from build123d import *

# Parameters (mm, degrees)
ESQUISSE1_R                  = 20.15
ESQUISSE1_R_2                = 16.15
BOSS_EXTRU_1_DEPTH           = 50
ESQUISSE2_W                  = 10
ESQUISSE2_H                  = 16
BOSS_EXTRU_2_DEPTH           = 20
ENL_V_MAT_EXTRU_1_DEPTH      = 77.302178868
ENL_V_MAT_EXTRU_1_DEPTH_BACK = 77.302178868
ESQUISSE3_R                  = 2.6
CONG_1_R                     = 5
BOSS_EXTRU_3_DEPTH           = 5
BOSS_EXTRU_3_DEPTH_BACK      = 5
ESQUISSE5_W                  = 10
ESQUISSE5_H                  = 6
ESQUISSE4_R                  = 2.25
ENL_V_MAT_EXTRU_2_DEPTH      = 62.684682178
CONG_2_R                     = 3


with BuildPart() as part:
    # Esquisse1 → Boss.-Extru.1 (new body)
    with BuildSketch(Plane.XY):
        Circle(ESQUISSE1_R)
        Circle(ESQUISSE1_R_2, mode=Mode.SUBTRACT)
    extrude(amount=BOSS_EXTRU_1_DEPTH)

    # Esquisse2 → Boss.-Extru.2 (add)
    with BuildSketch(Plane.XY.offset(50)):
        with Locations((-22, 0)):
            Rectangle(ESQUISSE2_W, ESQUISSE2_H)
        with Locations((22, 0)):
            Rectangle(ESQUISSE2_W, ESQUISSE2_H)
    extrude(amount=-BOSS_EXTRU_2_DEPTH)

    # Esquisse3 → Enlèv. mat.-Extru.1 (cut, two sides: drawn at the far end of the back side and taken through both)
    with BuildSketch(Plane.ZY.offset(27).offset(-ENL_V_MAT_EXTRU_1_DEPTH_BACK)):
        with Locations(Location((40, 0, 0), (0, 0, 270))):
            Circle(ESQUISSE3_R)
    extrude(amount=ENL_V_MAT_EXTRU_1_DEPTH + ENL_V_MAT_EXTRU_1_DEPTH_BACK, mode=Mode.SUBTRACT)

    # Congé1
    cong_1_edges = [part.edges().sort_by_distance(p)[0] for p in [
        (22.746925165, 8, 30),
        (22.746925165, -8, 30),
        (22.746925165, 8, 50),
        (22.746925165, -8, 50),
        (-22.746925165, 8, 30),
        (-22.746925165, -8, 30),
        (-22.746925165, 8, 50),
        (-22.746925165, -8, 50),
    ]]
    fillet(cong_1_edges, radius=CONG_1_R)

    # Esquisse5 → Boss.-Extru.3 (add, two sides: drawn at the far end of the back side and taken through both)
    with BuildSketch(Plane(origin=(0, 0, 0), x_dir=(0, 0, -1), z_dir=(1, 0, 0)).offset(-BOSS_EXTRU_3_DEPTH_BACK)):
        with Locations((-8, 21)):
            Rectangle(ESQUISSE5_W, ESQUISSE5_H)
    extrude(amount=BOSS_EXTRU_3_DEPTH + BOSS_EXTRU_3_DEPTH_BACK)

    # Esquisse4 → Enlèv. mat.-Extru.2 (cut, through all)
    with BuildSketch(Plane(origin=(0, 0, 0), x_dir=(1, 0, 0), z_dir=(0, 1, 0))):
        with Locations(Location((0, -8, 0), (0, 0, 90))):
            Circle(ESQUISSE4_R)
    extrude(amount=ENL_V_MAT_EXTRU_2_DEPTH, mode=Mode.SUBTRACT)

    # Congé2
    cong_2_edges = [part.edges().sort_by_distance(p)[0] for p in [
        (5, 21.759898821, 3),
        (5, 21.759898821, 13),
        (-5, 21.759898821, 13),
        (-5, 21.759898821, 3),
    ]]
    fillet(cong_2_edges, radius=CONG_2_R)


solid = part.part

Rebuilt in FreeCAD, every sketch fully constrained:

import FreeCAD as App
import Part
import Sketcher


def edges_at(feature, points):
    """Names of the edges that pass closest to the given points."""
    edges = feature.Shape.Edges
    near = lambda p: min(range(len(edges)), key=lambda i: edges[i].distToShape(Part.Vertex(*p))[0])
    return sorted({f"Edge{near(p) + 1}" for p in points})


def add_polygon(sketch, points):
    """Adds a closed chain of lines whose ends are joined by coincident constraints."""
    first, n = sketch.GeometryCount, len(points)
    for a, b in zip(points, points[1:] + points[:1]):
        sketch.addGeometry(Part.LineSegment(App.Vector(*a, 0), App.Vector(*b, 0)), False)
    for i in range(n):
        sketch.addConstraint(Sketcher.Constraint("Coincident", first + i, 2, first + (i + 1) % n, 1))

doc = App.newDocument("Part")
params = doc.addObject("Spreadsheet::Sheet", "Params")
for row, (alias, value) in enumerate([
    ("sketch1_diameter", "40.3 mm"),
    ("sketch1_diameter2", "32.3 mm"),
    ("pad1_length", "50 mm"),
    ("sketch2_width", "10 mm"),
    ("sketch2_height", "16 mm"),
    ("pad2_length", "20 mm"),
    ("sketch3_diameter", "5.2 mm"),
    ("fillet_radius", "5 mm"),
    ("sketch4_width", "6 mm"),
    ("sketch4_height", "10 mm"),
    ("pad3_length", "5 mm"),
    ("pad3_length2", "5 mm"),
    ("sketch5_diameter", "4.5 mm"),
    ("fillet2_radius", "3 mm"),
], start=1):
    params.set(f"A{row}", alias)
    params.set(f"B{row}", "=" + value)
    params.setAlias(f"B{row}", alias)

body = doc.addObject("PartDesign::Body", "Body")

sketch1 = body.newObject("Sketcher::SketchObject", "Sketch")
sketch1.AttachmentSupport = (doc.getObject("XY_Plane"), [""])
sketch1.MapMode = "FlatFace"
sketch1.addGeometry([
    Part.Circle(App.Vector(0, 0, 0), App.Vector(0, 0, 1), 20),
    Part.Circle(App.Vector(0, 0, 0), App.Vector(0, 0, 1), 16),
], False)
sketch1.addConstraint([
    Sketcher.Constraint("Coincident", 0, 3, -1, 1),
    Sketcher.Constraint("Coincident", 1, 3, -1, 1),
    Sketcher.Constraint("Diameter", 0, 40.3),
    Sketcher.Constraint("Diameter", 1, 32.3),
])
sketch1.setExpression("Constraints[2]", "Params.sketch1_diameter")
sketch1.setExpression("Constraints[3]", "Params.sketch1_diameter2")
pad1 = body.newObject("PartDesign::Pad", "Pad")
pad1.Profile = sketch1
pad1.setExpression("Length", "Params.pad1_length")

sketch2 = body.newObject("Sketcher::SketchObject", "Sketch001")
sketch2.AttachmentSupport = (doc.getObject("XY_Plane"), [""])
sketch2.MapMode = "FlatFace"
sketch2.AttachmentOffset = App.Placement(App.Vector(0, 0, 50), App.Rotation())
add_polygon(sketch2, [(-27, 8), (-27, -8), (-17, -8), (-17, 8)])
add_polygon(sketch2, [(17, 8), (17, -8), (27, -8), (27, 8)])
sketch2.addConstraint([
    Sketcher.Constraint("Vertical", 0),
    Sketcher.Constraint("Horizontal", 1),
    Sketcher.Constraint("Vertical", 2),
    Sketcher.Constraint("Horizontal", 3),
    Sketcher.Constraint("Vertical", 4),
    Sketcher.Constraint("Horizontal", 5),
    Sketcher.Constraint("Vertical", 6),
    Sketcher.Constraint("Horizontal", 7),
    Sketcher.Constraint("Symmetric", 2, 2, 4, 2, -1, 1),
    Sketcher.Constraint("Symmetric", 0, 2, 6, 2, -1, 1),
    Sketcher.Constraint("Horizontal", 1, 2, 4, 2),
    Sketcher.Constraint("DistanceX", 1, 1, 1, 2, 10.0),
    Sketcher.Constraint("DistanceY", 0, 2, 0, 1, 16.0),
    Sketcher.Constraint("DistanceX", 0, 2, -1, 1, 27.0),
])
sketch2.setExpression("Constraints[19]", "Params.sketch2_width")
sketch2.setExpression("Constraints[20]", "Params.sketch2_height")
pad2 = body.newObject("PartDesign::Pad", "Pad001")
pad2.Profile = sketch2
pad2.setExpression("Length", "Params.pad2_length")
pad2.Reversed = True

sketch3 = body.newObject("Sketcher::SketchObject", "Sketch002")
sketch3.AttachmentSupport = (doc.getObject("YZ_Plane"), [""])
sketch3.MapMode = "FlatFace"
sketch3.AttachmentOffset = App.Placement(App.Vector(0, 0, -27), App.Rotation())
sketch3.addGeometry(Part.Circle(App.Vector(0, 40, 0), App.Vector(0, 0, 1), 2.6), False)
sketch3.addConstraint([
    Sketcher.Constraint("PointOnObject", 0, 3, -2),
    Sketcher.Constraint("Diameter", 0, 5.2),
    Sketcher.Constraint("DistanceY", -1, 1, 0, 3, 40.0),
])
sketch3.setExpression("Constraints[1]", "Params.sketch3_diameter")
pocket1 = body.newObject("PartDesign::Pocket", "Pocket")
pocket1.Profile = sketch3
pocket1.Type = "ThroughAll"
pocket1.Midplane = True
doc.recompute()

fillet = body.newObject("PartDesign::Fillet", "Fillet")
fillet.Base = (pocket1, edges_at(pocket1, [
    (22.747, 8, 30),
    (22.747, -8, 30),
    (22.747, 8, 50),
    (22.747, -8, 50),
    (-22.747, 8, 30),
    (-22.747, -8, 30),
    (-22.747, 8, 50),
    (-22.747, -8, 50),
]))
fillet.setExpression("Radius", "Params.fillet_radius")

sketch4 = body.newObject("Sketcher::SketchObject", "Sketch003")
sketch4.AttachmentSupport = (doc.getObject("YZ_Plane"), [""])
sketch4.MapMode = "FlatFace"
add_polygon(sketch4, [(24, 13), (18, 13), (18, 3), (24, 3)])
sketch4.addConstraint([
    Sketcher.Constraint("Horizontal", 0),
    Sketcher.Constraint("Vertical", 1),
    Sketcher.Constraint("Horizontal", 2),
    Sketcher.Constraint("Vertical", 3),
    Sketcher.Constraint("DistanceX", 0, 2, 0, 1, 6.0),
    Sketcher.Constraint("DistanceY", 1, 2, 1, 1, 10.0),
    Sketcher.Constraint("DistanceX", -1, 1, 0, 2, 18.0),
    Sketcher.Constraint("DistanceY", -1, 1, 0, 2, 13.0),
])
sketch4.setExpression("Constraints[8]", "Params.sketch4_width")
sketch4.setExpression("Constraints[9]", "Params.sketch4_height")
pad3 = body.newObject("PartDesign::Pad", "Pad002")
pad3.Profile = sketch4
pad3.Type = "TwoLengths"
pad3.setExpression("Length", "Params.pad3_length")
pad3.setExpression("Length2", "Params.pad3_length2")

sketch5 = body.newObject("Sketcher::SketchObject", "Sketch004")
sketch5.AttachmentSupport = (doc.getObject("XZ_Plane"), [""])
sketch5.MapMode = "FlatFace"
sketch5.addGeometry(Part.Circle(App.Vector(0, 8, 0), App.Vector(0, 0, 1), 2.2), False)
sketch5.addConstraint([
    Sketcher.Constraint("PointOnObject", 0, 3, -2),
    Sketcher.Constraint("Diameter", 0, 4.5),
    Sketcher.Constraint("DistanceY", -1, 1, 0, 3, 8.0),
])
sketch5.setExpression("Constraints[1]", "Params.sketch5_diameter")
pocket2 = body.newObject("PartDesign::Pocket", "Pocket001")
pocket2.Profile = sketch5
pocket2.Type = "ThroughAll"
doc.recompute()

fillet2 = body.newObject("PartDesign::Fillet", "Fillet001")
fillet2.Base = (pocket2, edges_at(pocket2, [
    (5, 21.76, 3),
    (5, 21.76, 13),
    (-5, 21.76, 13),
    (-5, 21.76, 3),
]))
fillet2.setExpression("Radius", "Params.fillet2_radius")

doc.recompute()
